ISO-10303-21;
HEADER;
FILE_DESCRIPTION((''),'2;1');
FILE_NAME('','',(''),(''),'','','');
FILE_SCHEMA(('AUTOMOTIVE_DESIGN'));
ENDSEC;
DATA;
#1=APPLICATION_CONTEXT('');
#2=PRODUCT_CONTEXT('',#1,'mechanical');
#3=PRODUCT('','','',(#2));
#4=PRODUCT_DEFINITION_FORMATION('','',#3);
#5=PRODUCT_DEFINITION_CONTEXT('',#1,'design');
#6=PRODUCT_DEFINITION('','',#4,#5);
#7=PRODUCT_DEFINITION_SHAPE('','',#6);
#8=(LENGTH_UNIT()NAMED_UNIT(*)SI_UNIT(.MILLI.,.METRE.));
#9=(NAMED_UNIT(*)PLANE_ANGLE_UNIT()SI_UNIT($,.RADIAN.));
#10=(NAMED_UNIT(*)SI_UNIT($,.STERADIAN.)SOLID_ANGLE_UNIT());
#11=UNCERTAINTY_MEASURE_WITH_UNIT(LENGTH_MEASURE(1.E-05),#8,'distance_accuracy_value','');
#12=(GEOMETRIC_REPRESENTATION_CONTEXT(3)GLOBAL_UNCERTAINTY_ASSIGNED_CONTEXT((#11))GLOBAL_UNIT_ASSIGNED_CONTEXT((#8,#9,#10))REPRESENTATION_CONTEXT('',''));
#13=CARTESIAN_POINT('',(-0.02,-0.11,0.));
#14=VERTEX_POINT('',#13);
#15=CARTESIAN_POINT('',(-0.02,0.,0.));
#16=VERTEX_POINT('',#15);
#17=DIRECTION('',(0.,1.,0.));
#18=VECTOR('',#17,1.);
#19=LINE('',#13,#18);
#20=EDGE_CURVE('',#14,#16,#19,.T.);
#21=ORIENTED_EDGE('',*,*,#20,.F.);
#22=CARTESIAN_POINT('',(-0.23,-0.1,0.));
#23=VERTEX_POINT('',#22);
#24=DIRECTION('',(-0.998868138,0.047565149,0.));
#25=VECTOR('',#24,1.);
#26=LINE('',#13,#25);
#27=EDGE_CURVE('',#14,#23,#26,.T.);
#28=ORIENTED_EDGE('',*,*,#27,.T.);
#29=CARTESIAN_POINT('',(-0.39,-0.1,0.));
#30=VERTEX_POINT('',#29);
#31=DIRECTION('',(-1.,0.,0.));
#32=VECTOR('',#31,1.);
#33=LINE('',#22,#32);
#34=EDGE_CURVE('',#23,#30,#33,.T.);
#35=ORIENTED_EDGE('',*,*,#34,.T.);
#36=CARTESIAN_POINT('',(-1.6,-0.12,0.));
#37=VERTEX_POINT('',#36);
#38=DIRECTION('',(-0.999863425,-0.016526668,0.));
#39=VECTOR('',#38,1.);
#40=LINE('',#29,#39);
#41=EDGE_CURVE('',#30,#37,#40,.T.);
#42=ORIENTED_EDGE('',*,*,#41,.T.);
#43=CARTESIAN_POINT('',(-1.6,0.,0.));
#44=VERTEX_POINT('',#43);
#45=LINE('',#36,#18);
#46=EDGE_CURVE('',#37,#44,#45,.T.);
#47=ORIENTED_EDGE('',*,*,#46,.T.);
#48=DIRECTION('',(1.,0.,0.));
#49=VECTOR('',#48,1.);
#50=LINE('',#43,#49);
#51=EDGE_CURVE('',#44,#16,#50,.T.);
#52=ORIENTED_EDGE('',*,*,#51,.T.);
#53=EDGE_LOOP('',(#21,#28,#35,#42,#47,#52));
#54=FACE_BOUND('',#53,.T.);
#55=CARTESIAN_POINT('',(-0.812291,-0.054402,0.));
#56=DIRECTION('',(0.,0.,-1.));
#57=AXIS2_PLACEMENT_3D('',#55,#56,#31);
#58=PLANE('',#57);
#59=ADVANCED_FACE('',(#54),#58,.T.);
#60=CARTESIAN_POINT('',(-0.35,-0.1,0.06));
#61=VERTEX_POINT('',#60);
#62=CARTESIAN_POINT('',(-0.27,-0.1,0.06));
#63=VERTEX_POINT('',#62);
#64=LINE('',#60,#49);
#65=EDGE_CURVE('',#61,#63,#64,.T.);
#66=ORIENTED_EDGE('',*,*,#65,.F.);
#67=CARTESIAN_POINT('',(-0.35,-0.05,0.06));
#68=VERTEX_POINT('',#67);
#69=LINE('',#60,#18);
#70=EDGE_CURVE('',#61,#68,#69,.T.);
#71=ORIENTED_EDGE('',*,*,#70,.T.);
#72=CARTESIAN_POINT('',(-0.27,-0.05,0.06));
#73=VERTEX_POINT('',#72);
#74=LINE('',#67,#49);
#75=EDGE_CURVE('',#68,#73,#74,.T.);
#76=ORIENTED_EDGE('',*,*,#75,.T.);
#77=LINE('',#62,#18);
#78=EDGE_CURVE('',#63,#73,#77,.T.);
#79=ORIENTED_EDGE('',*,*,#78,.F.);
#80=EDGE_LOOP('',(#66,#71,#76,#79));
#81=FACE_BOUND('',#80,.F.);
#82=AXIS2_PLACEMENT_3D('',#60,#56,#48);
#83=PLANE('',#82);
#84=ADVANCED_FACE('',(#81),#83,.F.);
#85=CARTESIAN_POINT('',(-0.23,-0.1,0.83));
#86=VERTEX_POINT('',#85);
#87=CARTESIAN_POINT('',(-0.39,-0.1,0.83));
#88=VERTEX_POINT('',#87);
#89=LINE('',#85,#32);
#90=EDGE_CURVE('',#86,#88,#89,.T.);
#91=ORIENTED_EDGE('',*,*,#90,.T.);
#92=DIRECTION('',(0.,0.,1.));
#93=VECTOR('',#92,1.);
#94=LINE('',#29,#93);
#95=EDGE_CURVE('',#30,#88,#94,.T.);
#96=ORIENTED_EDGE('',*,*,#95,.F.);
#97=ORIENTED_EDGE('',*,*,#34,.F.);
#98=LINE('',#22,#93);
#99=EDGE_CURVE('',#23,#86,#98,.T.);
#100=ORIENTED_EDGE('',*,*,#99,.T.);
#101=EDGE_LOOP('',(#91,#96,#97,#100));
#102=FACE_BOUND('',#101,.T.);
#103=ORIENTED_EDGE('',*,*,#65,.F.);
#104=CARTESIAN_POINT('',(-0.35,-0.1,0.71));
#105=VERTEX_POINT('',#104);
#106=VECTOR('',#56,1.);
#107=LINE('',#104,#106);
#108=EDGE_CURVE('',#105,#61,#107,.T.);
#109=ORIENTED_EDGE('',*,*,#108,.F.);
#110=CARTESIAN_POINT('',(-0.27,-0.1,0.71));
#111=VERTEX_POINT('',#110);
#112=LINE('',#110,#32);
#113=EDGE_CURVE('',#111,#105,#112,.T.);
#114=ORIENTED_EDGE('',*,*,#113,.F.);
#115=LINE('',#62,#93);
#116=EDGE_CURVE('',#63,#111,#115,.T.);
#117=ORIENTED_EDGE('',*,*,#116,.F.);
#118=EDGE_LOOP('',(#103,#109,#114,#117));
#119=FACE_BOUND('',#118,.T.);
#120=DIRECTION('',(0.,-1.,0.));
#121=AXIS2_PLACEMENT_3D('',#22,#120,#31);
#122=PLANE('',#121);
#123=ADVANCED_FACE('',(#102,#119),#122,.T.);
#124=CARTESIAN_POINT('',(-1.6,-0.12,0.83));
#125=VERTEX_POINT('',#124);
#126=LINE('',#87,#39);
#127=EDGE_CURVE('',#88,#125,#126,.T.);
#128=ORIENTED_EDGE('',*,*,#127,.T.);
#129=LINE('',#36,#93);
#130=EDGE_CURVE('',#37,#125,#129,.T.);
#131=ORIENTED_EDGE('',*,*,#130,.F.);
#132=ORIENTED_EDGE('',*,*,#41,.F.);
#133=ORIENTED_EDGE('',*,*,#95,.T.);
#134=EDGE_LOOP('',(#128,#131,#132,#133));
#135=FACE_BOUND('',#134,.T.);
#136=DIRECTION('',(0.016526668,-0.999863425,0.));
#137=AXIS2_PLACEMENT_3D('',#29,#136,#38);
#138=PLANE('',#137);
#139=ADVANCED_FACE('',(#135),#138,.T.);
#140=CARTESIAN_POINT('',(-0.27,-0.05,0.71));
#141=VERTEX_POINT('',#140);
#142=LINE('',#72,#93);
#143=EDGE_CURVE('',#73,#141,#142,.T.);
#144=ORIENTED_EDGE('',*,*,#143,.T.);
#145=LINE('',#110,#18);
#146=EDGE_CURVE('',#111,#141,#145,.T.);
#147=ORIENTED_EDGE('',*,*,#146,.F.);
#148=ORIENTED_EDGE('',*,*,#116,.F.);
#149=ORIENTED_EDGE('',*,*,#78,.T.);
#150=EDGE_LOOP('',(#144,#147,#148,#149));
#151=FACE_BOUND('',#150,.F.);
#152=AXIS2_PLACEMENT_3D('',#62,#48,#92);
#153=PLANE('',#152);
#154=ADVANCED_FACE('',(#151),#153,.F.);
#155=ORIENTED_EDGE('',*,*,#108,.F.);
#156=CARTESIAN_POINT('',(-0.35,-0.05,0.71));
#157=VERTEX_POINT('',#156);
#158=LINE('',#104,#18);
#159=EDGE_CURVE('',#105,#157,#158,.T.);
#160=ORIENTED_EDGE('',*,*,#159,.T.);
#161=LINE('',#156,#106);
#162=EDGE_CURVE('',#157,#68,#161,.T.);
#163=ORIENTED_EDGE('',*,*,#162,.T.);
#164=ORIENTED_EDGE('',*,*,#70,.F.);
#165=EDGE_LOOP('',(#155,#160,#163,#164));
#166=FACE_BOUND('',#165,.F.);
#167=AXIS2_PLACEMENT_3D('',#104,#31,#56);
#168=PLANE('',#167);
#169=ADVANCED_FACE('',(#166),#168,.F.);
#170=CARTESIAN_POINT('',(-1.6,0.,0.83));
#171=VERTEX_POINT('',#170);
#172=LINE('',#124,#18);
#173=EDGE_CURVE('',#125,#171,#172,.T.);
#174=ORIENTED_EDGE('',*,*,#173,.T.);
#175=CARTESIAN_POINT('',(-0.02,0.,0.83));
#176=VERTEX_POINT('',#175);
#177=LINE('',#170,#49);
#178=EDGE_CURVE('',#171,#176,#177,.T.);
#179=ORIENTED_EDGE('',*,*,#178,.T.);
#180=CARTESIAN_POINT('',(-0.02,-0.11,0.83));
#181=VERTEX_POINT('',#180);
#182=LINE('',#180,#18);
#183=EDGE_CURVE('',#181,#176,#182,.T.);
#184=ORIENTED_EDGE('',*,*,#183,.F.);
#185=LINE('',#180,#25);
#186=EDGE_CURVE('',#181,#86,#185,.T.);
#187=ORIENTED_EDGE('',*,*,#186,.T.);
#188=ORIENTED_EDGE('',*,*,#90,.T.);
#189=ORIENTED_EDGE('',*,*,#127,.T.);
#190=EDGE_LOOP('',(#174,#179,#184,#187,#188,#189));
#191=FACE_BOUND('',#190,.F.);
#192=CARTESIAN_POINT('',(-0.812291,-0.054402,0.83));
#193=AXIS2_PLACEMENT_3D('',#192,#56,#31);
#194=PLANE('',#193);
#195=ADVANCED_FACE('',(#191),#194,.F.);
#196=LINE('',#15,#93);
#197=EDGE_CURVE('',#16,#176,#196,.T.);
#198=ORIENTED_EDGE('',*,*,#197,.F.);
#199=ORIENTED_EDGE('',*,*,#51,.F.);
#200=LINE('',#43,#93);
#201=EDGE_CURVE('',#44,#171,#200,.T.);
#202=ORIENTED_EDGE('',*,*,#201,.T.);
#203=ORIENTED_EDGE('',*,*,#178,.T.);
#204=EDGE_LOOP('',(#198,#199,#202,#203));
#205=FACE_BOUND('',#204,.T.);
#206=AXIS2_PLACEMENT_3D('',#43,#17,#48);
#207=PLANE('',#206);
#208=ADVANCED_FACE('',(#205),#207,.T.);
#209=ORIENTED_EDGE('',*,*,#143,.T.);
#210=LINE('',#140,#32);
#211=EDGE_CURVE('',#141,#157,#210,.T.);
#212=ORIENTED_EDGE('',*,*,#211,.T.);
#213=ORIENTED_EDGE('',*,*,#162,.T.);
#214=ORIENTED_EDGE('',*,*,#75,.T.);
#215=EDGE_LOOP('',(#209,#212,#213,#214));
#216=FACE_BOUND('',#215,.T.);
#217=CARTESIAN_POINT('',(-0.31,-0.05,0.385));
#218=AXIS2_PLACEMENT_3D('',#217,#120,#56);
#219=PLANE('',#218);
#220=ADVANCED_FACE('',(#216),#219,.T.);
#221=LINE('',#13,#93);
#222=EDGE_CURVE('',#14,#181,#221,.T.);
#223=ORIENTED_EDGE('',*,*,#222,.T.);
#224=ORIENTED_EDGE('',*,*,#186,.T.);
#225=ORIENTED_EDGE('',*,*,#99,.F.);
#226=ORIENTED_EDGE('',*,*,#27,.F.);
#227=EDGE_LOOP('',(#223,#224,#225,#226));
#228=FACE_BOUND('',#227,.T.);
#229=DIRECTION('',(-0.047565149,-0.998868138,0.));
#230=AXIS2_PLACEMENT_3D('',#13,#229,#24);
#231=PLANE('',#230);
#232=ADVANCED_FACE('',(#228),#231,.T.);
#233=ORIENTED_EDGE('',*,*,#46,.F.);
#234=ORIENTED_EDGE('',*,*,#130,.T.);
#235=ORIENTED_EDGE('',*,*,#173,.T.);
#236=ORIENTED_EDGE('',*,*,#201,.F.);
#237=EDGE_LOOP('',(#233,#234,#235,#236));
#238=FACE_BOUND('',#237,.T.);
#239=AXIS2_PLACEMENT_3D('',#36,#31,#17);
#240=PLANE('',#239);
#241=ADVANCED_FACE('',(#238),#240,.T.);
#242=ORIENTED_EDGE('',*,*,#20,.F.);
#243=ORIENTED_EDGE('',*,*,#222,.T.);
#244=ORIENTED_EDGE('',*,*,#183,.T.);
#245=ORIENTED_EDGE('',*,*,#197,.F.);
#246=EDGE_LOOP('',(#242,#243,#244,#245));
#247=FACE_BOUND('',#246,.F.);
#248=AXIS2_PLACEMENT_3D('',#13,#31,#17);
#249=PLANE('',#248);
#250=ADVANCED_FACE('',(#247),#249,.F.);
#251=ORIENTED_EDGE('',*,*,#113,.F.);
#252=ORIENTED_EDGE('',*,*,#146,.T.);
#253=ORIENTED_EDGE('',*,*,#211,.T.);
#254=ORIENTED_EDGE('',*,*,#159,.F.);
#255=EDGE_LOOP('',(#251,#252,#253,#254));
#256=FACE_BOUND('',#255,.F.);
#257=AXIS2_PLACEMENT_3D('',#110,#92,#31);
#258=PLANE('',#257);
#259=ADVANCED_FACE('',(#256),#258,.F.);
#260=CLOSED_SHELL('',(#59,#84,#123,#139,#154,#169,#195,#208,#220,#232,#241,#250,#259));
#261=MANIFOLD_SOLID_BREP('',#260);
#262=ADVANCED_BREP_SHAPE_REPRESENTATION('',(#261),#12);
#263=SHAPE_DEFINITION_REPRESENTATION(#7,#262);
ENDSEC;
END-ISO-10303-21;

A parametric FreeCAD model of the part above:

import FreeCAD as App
import Part
import Sketcher
from FreeCAD import Vector
Q = App.Units.Quantity

doc = App.newDocument("Part")
params = doc.addObject("Spreadsheet::Sheet", "Params")
for row, (alias, value) in enumerate([
    ("sketch1_width", "0.16 mm"),
    ("sketch1_height", "0.12 mm"),
    ("sketch1_height2", "0.11 mm"),
    ("pad1_length", "0.83 mm"),
    ("sketch2_width", "0.08 mm"),
    ("sketch2_height", "0.65 mm"),
    ("pocket1_length", "0.05 mm"),
], start=1):
    params.set(f"A{row}", alias)
    params.set(f"B{row}", "=" + value)
    params.setAlias(f"B{row}", alias)

body = doc.addObject("PartDesign::Body", "Body")

# Sketch on XY plane
sketch1 = doc.addObject("Sketcher::SketchObject", "Sketch")
body.addObject(sketch1)
sketch1.AttachmentSupport = (doc.XY_Plane, [""])
sketch1.MapMode = "FlatFace"
sketch1.addGeometry([
    Part.LineSegment(Vector(-0.02, 0, 0), Vector(-1.6, 0, 0)),  # 0
    Part.LineSegment(Vector(-1.6, 0, 0), Vector(-1.6, -0.12, 0)),  # 1
    Part.LineSegment(Vector(-1.6, -0.12, 0), Vector(-0.39, -0.1, 0)),  # 2
    Part.LineSegment(Vector(-0.39, -0.1, 0), Vector(-0.23, -0.1, 0)),  # 3
    Part.LineSegment(Vector(-0.23, -0.1, 0), Vector(-0.02, -0.11, 0)),  # 4
    Part.LineSegment(Vector(-0.02, -0.11, 0), Vector(-0.02, 0, 0)),  # 5
], False)
sketch1.addConstraint([
    Sketcher.Constraint("Coincident", 0, 2, 1, 1),
    Sketcher.Constraint("Coincident", 1, 2, 2, 1),
    Sketcher.Constraint("Coincident", 2, 2, 3, 1),
    Sketcher.Constraint("Coincident", 3, 2, 4, 1),
    Sketcher.Constraint("Coincident", 4, 2, 5, 1),
    Sketcher.Constraint("Coincident", 5, 2, 0, 1),
    Sketcher.Constraint("Horizontal", 0),
    Sketcher.Constraint("Vertical", 1),
    Sketcher.Constraint("Horizontal", 3),
    Sketcher.Constraint("Vertical", 5),
    Sketcher.Constraint("PointOnObject", 0, 2, -1),
    Sketcher.Constraint("DistanceX", 0, 2, -1, 1, Q("1.6 mm")),
    Sketcher.Constraint("DistanceX", 3, 2, -1, 1, Q("0.23 mm")),
    Sketcher.Constraint("DistanceX", 4, 2, -1, 1, Q("0.02 mm")),
    Sketcher.Constraint("DistanceY", 1, 2, 2, 2, Q("0.02 mm")),
    Sketcher.Constraint("DistanceX", 3, 1, 3, 2, Q("0.16 mm")),
    Sketcher.Constraint("DistanceY", 1, 2, 1, 1, Q("0.12 mm")),
    Sketcher.Constraint("DistanceY", 5, 1, 5, 2, Q("0.11 mm")),
])
sketch1.setExpression("Constraints[15]", "Params.sketch1_width")
sketch1.setExpression("Constraints[16]", "Params.sketch1_height")
sketch1.setExpression("Constraints[17]", "Params.sketch1_height2")
pad1 = doc.addObject("PartDesign::Pad", "Pad")
body.addObject(pad1)
pad1.Profile = sketch1
pad1.setExpression("Length", "Params.pad1_length")

# Sketch on XZ plane
sketch2 = doc.addObject("Sketcher::SketchObject", "Sketch001")
body.addObject(sketch2)
sketch2.AttachmentSupport = (doc.XZ_Plane, [""])
sketch2.MapMode = "FlatFace"
sketch2.AttachmentOffset = App.Placement(Vector(0, 0, 0.1), App.Rotation())
sketch2.addGeometry([
    Part.LineSegment(Vector(-0.27, 0.71, 0), Vector(-0.35, 0.71, 0)),
    Part.LineSegment(Vector(-0.35, 0.71, 0), Vector(-0.35, 0.06, 0)),
    Part.LineSegment(Vector(-0.35, 0.06, 0), Vector(-0.27, 0.06, 0)),
    Part.LineSegment(Vector(-0.27, 0.06, 0), Vector(-0.27, 0.71, 0)),
], False)
sketch2.addConstraint([
    Sketcher.Constraint("Coincident", 0, 2, 1, 1),
    Sketcher.Constraint("Coincident", 1, 2, 2, 1),
    Sketcher.Constraint("Coincident", 2, 2, 3, 1),
    Sketcher.Constraint("Coincident", 3, 2, 0, 1),
    Sketcher.Constraint("Horizontal", 0),
    Sketcher.Constraint("Vertical", 1),
    Sketcher.Constraint("Horizontal", 2),
    Sketcher.Constraint("Vertical", 3),
    Sketcher.Constraint("DistanceX", 0, 2, 0, 1, Q("0.08 mm")),
    Sketcher.Constraint("DistanceY", 1, 2, 1, 1, Q("0.65 mm")),
    Sketcher.Constraint("DistanceX", 0, 2, -1, 1, Q("0.35 mm")),
    Sketcher.Constraint("DistanceY", -1, 1, 0, 2, Q("0.71 mm")),
])
sketch2.setExpression("Constraints[8]", "Params.sketch2_width")
sketch2.setExpression("Constraints[9]", "Params.sketch2_height")
pocket1 = doc.addObject("PartDesign::Pocket", "Pocket")
body.addObject(pocket1)
pocket1.Profile = sketch2
pocket1.setExpression("Length", "Params.pocket1_length")

doc.recompute()
